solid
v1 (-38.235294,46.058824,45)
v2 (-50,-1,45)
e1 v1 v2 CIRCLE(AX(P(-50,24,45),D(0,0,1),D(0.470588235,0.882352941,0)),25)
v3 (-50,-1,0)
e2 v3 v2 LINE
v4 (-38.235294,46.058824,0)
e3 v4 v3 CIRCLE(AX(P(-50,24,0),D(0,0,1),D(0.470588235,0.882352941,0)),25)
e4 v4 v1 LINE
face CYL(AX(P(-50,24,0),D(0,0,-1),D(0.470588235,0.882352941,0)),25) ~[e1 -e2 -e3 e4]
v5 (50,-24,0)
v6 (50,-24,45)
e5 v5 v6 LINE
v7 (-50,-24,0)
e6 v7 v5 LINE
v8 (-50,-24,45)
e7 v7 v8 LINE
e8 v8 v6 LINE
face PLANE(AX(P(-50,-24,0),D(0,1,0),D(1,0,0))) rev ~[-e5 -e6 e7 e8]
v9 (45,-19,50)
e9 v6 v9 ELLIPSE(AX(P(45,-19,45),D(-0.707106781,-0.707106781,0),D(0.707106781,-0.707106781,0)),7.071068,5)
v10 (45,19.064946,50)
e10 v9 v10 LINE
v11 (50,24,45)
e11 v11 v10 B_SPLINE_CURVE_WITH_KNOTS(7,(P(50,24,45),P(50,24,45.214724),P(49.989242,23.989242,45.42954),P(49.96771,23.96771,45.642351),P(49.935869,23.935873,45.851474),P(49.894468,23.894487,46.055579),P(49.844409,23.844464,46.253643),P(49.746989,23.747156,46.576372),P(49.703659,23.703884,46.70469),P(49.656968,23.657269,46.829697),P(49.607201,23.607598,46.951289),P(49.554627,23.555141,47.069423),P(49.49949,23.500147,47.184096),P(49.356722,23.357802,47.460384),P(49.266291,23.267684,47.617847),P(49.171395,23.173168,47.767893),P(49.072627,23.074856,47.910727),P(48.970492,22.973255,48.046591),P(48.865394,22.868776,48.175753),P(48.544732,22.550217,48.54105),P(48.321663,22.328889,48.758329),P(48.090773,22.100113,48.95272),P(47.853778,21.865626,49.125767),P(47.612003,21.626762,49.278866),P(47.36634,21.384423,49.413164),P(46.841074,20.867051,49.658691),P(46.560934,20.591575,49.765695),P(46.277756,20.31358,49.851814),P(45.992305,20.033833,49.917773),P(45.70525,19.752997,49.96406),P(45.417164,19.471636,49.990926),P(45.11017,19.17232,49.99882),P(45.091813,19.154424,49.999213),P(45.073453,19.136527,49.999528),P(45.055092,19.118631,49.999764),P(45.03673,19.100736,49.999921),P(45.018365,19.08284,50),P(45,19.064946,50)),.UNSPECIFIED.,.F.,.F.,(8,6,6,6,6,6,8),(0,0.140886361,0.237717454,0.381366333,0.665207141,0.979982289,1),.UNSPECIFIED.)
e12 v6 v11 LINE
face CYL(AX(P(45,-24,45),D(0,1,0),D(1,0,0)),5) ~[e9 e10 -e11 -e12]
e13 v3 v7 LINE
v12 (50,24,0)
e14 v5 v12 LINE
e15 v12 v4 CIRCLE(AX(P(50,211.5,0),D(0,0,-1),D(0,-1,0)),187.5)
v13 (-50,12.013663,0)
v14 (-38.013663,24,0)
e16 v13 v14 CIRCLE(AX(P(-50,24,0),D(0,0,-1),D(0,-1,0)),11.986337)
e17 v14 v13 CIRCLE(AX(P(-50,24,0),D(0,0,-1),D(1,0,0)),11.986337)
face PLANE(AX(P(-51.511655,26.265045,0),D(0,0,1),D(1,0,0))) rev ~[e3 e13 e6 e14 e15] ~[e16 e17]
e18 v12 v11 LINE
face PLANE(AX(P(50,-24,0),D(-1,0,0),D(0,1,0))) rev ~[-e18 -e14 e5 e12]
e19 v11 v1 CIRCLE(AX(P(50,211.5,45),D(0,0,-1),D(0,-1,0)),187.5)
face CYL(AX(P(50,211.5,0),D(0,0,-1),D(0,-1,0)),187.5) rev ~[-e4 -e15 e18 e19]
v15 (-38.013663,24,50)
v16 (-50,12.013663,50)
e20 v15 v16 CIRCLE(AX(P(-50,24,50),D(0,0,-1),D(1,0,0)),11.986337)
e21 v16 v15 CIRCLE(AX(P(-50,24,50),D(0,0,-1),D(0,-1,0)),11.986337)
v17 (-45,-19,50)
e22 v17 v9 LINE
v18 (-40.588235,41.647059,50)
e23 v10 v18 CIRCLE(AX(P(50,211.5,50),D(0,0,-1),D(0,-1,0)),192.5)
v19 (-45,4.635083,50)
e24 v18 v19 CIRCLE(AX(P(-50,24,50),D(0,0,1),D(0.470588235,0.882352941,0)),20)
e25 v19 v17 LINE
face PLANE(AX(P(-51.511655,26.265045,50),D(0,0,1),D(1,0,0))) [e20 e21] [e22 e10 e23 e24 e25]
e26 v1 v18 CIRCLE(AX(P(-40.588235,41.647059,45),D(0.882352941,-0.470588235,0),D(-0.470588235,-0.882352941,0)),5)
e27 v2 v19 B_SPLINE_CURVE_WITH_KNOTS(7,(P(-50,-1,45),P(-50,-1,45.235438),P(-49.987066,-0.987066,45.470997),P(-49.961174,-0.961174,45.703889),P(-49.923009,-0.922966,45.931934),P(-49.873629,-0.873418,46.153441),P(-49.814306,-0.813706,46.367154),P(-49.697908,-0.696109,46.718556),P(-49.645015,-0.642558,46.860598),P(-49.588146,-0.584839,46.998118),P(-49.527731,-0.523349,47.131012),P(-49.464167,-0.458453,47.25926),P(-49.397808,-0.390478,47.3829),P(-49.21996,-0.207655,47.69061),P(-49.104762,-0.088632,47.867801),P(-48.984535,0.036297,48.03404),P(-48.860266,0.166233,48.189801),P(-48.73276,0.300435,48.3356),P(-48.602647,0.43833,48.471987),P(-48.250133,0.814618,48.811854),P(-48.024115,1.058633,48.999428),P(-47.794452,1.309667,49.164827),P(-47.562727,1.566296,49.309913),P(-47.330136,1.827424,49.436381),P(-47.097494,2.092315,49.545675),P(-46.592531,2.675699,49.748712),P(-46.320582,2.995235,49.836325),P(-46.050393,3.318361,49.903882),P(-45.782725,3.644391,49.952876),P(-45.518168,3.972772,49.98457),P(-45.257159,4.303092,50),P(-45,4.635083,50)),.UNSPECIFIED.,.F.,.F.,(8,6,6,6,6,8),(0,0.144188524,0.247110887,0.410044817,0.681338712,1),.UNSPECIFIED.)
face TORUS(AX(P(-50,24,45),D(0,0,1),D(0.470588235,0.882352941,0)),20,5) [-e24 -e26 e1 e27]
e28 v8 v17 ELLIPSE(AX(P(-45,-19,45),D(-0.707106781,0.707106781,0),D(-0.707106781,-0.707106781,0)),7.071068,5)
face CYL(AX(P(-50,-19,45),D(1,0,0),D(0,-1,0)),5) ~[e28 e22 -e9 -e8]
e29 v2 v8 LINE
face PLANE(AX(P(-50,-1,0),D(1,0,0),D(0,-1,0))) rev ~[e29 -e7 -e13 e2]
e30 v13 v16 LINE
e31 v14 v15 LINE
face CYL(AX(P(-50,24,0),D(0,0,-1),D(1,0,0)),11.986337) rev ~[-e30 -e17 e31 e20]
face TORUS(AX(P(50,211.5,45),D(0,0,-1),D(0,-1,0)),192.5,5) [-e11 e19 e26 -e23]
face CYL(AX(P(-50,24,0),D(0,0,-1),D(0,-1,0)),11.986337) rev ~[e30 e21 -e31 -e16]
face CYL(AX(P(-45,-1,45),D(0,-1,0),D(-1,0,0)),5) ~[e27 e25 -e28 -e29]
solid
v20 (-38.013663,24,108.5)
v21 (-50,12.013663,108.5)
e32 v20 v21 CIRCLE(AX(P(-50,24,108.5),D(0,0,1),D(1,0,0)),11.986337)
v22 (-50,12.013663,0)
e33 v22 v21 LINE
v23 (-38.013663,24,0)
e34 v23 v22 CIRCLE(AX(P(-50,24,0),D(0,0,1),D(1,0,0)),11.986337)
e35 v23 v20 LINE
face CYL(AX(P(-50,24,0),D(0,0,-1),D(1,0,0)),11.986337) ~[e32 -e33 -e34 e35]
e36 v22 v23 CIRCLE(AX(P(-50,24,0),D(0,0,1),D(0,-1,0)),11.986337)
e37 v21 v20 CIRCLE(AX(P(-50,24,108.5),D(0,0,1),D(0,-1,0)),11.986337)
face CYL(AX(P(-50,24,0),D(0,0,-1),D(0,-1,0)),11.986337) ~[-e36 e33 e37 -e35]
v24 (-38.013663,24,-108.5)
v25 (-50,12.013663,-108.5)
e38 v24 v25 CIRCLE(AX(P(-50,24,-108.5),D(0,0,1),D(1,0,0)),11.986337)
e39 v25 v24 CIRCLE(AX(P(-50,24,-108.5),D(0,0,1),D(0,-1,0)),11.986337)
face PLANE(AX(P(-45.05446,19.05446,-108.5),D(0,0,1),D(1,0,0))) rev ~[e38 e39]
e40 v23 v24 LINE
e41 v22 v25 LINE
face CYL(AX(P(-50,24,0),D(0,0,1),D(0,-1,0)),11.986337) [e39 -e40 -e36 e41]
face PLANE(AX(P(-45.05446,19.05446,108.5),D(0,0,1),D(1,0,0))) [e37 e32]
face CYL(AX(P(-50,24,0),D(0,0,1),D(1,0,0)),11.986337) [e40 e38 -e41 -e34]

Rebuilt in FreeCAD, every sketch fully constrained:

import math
import FreeCAD as App
import Part
import Sketcher
Q = App.Units.Quantity


def edges_at(feature, points):
    """Names of the edges that pass closest to the given points."""
    edges = feature.Shape.Edges
    near = lambda p: min(range(len(edges)), key=lambda i: edges[i].distToShape(Part.Vertex(*p))[0])
    return sorted({f"Edge{near(p) + 1}" for p in points})

doc = App.newDocument("Part")
params = doc.addObject("Spreadsheet::Sheet", "Params")
for row, (alias, value) in enumerate([
    ("sketch1_radius", "25 mm"),
    ("sketch1_radius2", "187.5 mm"),
    ("sketch1_height", "23 mm"),
    ("pad1_length", "50 mm"),
    ("fillet_radius", "5 mm"),
    ("pad2_length", "217 mm"),
], start=1):
    params.set(f"A{row}", alias)
    params.set(f"B{row}", "=" + value)
    params.setAlias(f"B{row}", alias)

body = doc.addObject("PartDesign::Body", "Body")

# Sketch on XY plane
sketch1 = doc.addObject("Sketcher::SketchObject", "Sketch")
body.addObject(sketch1)
sketch1.AttachmentSupport = (doc.XY_Plane, [""])
sketch1.MapMode = "FlatFace"
sketch1.addGeometry([
    Part.ArcOfCircle(Part.Circle(App.Vector(-50, 24, 0), App.Vector(0, 0, 1), 25), math.radians(61.927513), math.radians(270)),  # 0
    Part.LineSegment(App.Vector(-50, -1, 0), App.Vector(-50, -24, 0)),  # 1
    Part.LineSegment(App.Vector(-50, -24, 0), App.Vector(50, -24, 0)),  # 2
    Part.LineSegment(App.Vector(50, -24, 0), App.Vector(50, 24, 0)),  # 3
    Part.ArcOfCircle(Part.Circle(App.Vector(50, 211.5, 0), App.Vector(0, 0, 1), 187.5), math.radians(-118.072487), math.radians(-90)),  # 4
    Part.ArcOfCircle(Part.Circle(App.Vector(-50, 24, 0), App.Vector(0, 0, 1), 11.986337), math.radians(0), math.radians(270)),  # 5
    Part.ArcOfCircle(Part.Circle(App.Vector(-50, 24, 0), App.Vector(0, 0, 1), 11.986337), math.radians(-90), math.radians(0)),  # 6
], False)
sketch1.addConstraint([
    Sketcher.Constraint("Coincident", 0, 2, 1, 1),
    Sketcher.Constraint("Coincident", 1, 2, 2, 1),
    Sketcher.Constraint("Coincident", 2, 2, 3, 1),
    Sketcher.Constraint("Coincident", 3, 2, 4, 2),
    Sketcher.Constraint("Tangent", 4, 1, 0, 1),
    Sketcher.Constraint("Tangent", 5, 1, 6, 2),
    Sketcher.Constraint("Coincident", 6, 1, 5, 2),
    Sketcher.Constraint("Vertical", 1),
    Sketcher.Constraint("Horizontal", 2),
    Sketcher.Constraint("Vertical", 3),
    Sketcher.Constraint("Coincident", 5, 3, 0, 3),
    Sketcher.Constraint("Symmetric", 1, 2, 3, 2, -1, 1),
    Sketcher.Constraint("Horizontal", 6, 3, 3, 2),
    Sketcher.Constraint("Horizontal", 3, 2, 5, 1),
    Sketcher.Constraint("Vertical", 6, 3, 0, 2),
    Sketcher.Constraint("Vertical", 4, 3, 2, 2),
    Sketcher.Constraint("Vertical", 1, 2, 6, 1),
    Sketcher.Constraint("Radius", 0, Q("25 mm")),
    Sketcher.Constraint("Radius", 4, Q("187.5 mm")),
    Sketcher.Constraint("DistanceY", 1, 2, 1, 1, Q("23 mm")),
    Sketcher.Constraint("Radius", 5, Q("11.986337 mm")),
])
sketch1.setExpression("Constraints[17]", "Params.sketch1_radius")
sketch1.setExpression("Constraints[18]", "Params.sketch1_radius2")
sketch1.setExpression("Constraints[19]", "Params.sketch1_height")
pad1 = doc.addObject("PartDesign::Pad", "Pad")
body.addObject(pad1)
pad1.Profile = sketch1
pad1.setExpression("Length", "Params.pad1_length")
doc.recompute()

fillet = doc.addObject("PartDesign::Fillet", "Fillet")
body.addObject(fillet)
fillet.Base = (pad1, edges_at(pad1, [
    (-74.254, 30.063, 50),
    (-50, -12.5, 50),
    (0, -24, 50),
    (50, 0, 50),
]))
fillet.setExpression("Radius", "Params.fillet_radius")
body2 = doc.addObject("PartDesign::Body", "Body001")

# Sketch on XY plane
sketch2 = doc.addObject("Sketcher::SketchObject", "Sketch001")
body2.addObject(sketch2)
sketch2.AttachmentSupport = (doc.getObject("XY_Plane001"), [""])
sketch2.MapMode = "FlatFace"
sketch2.addGeometry([
    Part.ArcOfCircle(Part.Circle(App.Vector(-50, 24, 0), App.Vector(0, 0, 1), 11.986337), math.radians(-90), math.radians(0)),
    Part.ArcOfCircle(Part.Circle(App.Vector(-50, 24, 0), App.Vector(0, 0, 1), 11.986337), math.radians(0), math.radians(270)),
], False)
sketch2.addConstraint([
    Sketcher.Constraint("Tangent", 0, 1, 1, 2),
    Sketcher.Constraint("Coincident", 1, 1, 0, 2),
    Sketcher.Constraint("Horizontal", 0, 3, 1, 1),
    Sketcher.Constraint("Vertical", 1, 3, 0, 1),
    Sketcher.Constraint("DistanceX", 0, 3, -1, 1, Q("50 mm")),
    Sketcher.Constraint("DistanceY", -1, 1, 0, 3, Q("24 mm")),
    Sketcher.Constraint("Radius", 0, Q("11.986337 mm")),
])
pad2 = doc.addObject("PartDesign::Pad", "Pad001")
body2.addObject(pad2)
pad2.Profile = sketch2
pad2.setExpression("Length", "Params.pad2_length")
pad2.Midplane = True

doc.recompute()
